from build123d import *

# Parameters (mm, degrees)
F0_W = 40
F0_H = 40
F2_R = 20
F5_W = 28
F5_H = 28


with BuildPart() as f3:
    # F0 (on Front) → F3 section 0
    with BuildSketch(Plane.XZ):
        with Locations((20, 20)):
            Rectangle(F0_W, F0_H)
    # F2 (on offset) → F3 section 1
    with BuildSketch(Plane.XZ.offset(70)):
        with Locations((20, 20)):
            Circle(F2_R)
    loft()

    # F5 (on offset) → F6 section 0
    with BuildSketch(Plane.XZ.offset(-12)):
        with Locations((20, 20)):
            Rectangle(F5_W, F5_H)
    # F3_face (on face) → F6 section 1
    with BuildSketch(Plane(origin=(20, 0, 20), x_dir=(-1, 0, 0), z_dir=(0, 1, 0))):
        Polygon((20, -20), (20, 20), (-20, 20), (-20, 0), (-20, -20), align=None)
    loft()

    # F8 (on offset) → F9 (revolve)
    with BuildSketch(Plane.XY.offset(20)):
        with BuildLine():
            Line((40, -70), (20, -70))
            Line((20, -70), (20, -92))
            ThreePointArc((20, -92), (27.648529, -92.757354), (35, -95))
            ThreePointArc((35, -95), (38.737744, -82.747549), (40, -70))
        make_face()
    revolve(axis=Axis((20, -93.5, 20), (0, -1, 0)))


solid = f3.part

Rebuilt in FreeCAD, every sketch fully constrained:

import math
import FreeCAD as App
import Part
import Sketcher
from FreeCAD import Vector
Q = App.Units.Quantity

doc = App.newDocument("Part")
body = doc.addObject("PartDesign::Body", "Body")

# Sketch on XZ plane
sketch1 = doc.addObject("Sketcher::SketchObject", "Sketch")
body.addObject(sketch1)
sketch1.AttachmentSupport = (doc.XZ_Plane, [""])
sketch1.MapMode = "FlatFace"
sketch1.addGeometry([
    Part.LineSegment(Vector(0, 40, 0), Vector(0, 0, 0)),
    Part.LineSegment(Vector(0, 0, 0), Vector(40, 0, 0)),
    Part.LineSegment(Vector(40, 0, 0), Vector(40, 40, 0)),
    Part.LineSegment(Vector(40, 40, 0), Vector(0, 40, 0)),
], False)
sketch1.addConstraint([
    Sketcher.Constraint("Coincident", 0, 2, 1, 1),
    Sketcher.Constraint("Coincident", 1, 2, 2, 1),
    Sketcher.Constraint("Coincident", 2, 2, 3, 1),
    Sketcher.Constraint("Coincident", 3, 2, 0, 1),
    Sketcher.Constraint("Vertical", 0),
    Sketcher.Constraint("Horizontal", 1),
    Sketcher.Constraint("Vertical", 2),
    Sketcher.Constraint("Horizontal", 3),
    Sketcher.Constraint("Coincident", 0, 2, -1, 1),
    Sketcher.Constraint("Equal", 3, 0),
    Sketcher.Constraint("DistanceX", 1, 1, 1, 2, Q("40 mm")),
])

# Sketch on XZ plane
sketch2 = doc.addObject("Sketcher::SketchObject", "Sketch001")
body.addObject(sketch2)
sketch2.AttachmentSupport = (doc.XZ_Plane, [""])
sketch2.MapMode = "FlatFace"
sketch2.AttachmentOffset = App.Placement(Vector(0, 0, 70), App.Rotation())
sketch2.addGeometry(Part.Circle(Vector(20, 20, 0), Vector(0, 0, 1), 20), False)
sketch2.addConstraint([
    Sketcher.Constraint("Diameter", 0, Q("40 mm")),
    Sketcher.Constraint("DistanceX", -1, 1, 0, 3, Q("20 mm")),
    Sketcher.Constraint("DistanceY", -1, 1, 0, 3, Q("20 mm")),
])

additiveloft = doc.addObject("PartDesign::AdditiveLoft", "AdditiveLoft")
body.addObject(additiveloft)
additiveloft.Profile = sketch1
additiveloft.Sections = [sketch2]

# Sketch on XZ plane
sketch3 = doc.addObject("Sketcher::SketchObject", "Sketch002")
body.addObject(sketch3)
sketch3.AttachmentSupport = (doc.XZ_Plane, [""])
sketch3.MapMode = "FlatFace"
sketch3.AttachmentOffset = App.Placement(Vector(0, 0, -12), App.Rotation())
sketch3.addGeometry([
    Part.LineSegment(Vector(6, 34, 0), Vector(6, 6, 0)),
    Part.LineSegment(Vector(6, 6, 0), Vector(34, 6, 0)),
    Part.LineSegment(Vector(34, 6, 0), Vector(34, 34, 0)),
    Part.LineSegment(Vector(34, 34, 0), Vector(6, 34, 0)),
], False)
sketch3.addConstraint([
    Sketcher.Constraint("Coincident", 0, 2, 1, 1),
    Sketcher.Constraint("Coincident", 1, 2, 2, 1),
    Sketcher.Constraint("Coincident", 2, 2, 3, 1),
    Sketcher.Constraint("Coincident", 3, 2, 0, 1),
    Sketcher.Constraint("Vertical", 0),
    Sketcher.Constraint("Horizontal", 1),
    Sketcher.Constraint("Vertical", 2),
    Sketcher.Constraint("Horizontal", 3),
    Sketcher.Constraint("Equal", 3, 0),
    Sketcher.Constraint("DistanceX", 1, 1, 1, 2, Q("28 mm")),
    Sketcher.Constraint("DistanceX", -1, 1, 0, 2, Q("6 mm")),
    Sketcher.Constraint("DistanceY", -1, 1, 0, 2, Q("6 mm")),
])

# Sketch on XZ plane
sketch4 = doc.addObject("Sketcher::SketchObject", "Sketch003")
body.addObject(sketch4)
sketch4.AttachmentSupport = (doc.XZ_Plane, [""])
sketch4.MapMode = "FlatFace"
sketch4.addGeometry([
    Part.LineSegment(Vector(0, 0, 0), Vector(0, 40, 0)),
    Part.LineSegment(Vector(0, 40, 0), Vector(40, 40, 0)),
    Part.LineSegment(Vector(40, 40, 0), Vector(40, 0, 0)),
    Part.LineSegment(Vector(40, 0, 0), Vector(0, 0, 0)),
], False)
sketch4.addConstraint([
    Sketcher.Constraint("Coincident", 0, 2, 1, 1),
    Sketcher.Constraint("Coincident", 1, 2, 2, 1),
    Sketcher.Constraint("Coincident", 2, 2, 3, 1),
    Sketcher.Constraint("Coincident", 3, 2, 0, 1),
    Sketcher.Constraint("Vertical", 0),
    Sketcher.Constraint("Horizontal", 1),
    Sketcher.Constraint("Vertical", 2),
    Sketcher.Constraint("Horizontal", 3),
    Sketcher.Constraint("Coincident", 3, 2, -1, 1),
    Sketcher.Constraint("Equal", 3, 0),
    Sketcher.Constraint("DistanceX", 1, 1, 1, 2, Q("40 mm")),
])

additiveloft2 = doc.addObject("PartDesign::AdditiveLoft", "AdditiveLoft001")
body.addObject(additiveloft2)
additiveloft2.Profile = sketch3
additiveloft2.Sections = [sketch4]

# Sketch on XY plane
sketch5 = doc.addObject("Sketcher::SketchObject", "Sketch004")
body.addObject(sketch5)
sketch5.AttachmentSupport = (doc.XY_Plane, [""])
sketch5.MapMode = "FlatFace"
sketch5.AttachmentOffset = App.Placement(Vector(0, 0, 20), App.Rotation())
sketch5.addGeometry([
    Part.LineSegment(Vector(40, -70, 0), Vector(20, -70, 0)),
    Part.LineSegment(Vector(20, -70, 0), Vector(20, -92, 0)),
    Part.ArcOfCircle(Part.Circle(Vector(19.999996, -131.00002, 0), Vector(0, 0, 1), 39.00002), math.radians(67.380141), math.radians(89.999994)),
    Part.ArcOfCircle(Part.Circle(Vector(-24.999994, -70.000001, 0), Vector(0, 0, 1), 64.999994), math.radians(-22.619866), math.radians(0.000001)),
], False)
sketch5.addGeometry(Part.LineSegment(Vector(20, -70, 0), Vector(20, -131.00002, 0)), True)  # axis
sketch5.addConstraint([
    Sketcher.Constraint("Coincident", 0, 2, 1, 1),
    Sketcher.Constraint("Coincident", 1, 2, 2, 2),
    Sketcher.Constraint("Coincident", 2, 1, 3, 1),
    Sketcher.Constraint("Coincident", 3, 2, 0, 1),
    Sketcher.Constraint("Horizontal", 0),
    Sketcher.Constraint("Vertical", 1),
    Sketcher.Constraint("Vertical", 4),
    Sketcher.Constraint("Coincident", 4, 1, 0, 2),
    Sketcher.Constraint("Coincident", 4, 2, 2, 3),
    Sketcher.Constraint("Horizontal", 3, 3, 0, 2),
    Sketcher.Constraint("DistanceX", 0, 2, 0, 1, Q("20 mm")),
    Sketcher.Constraint("DistanceY", 1, 2, 1, 1, Q("22 mm")),
    Sketcher.Constraint("DistanceY", 3, 3, -1, 1, Q("70.000001 mm")),
    Sketcher.Constraint("DistanceX", -1, 1, 0, 2, Q("20 mm")),
    Sketcher.Constraint("DistanceY", 2, 1, -1, 1, Q("95 mm")),
    Sketcher.Constraint("Radius", 2, Q("39.00002 mm")),
])
revolution = doc.addObject("PartDesign::Revolution", "Revolution")
body.addObject(revolution)
revolution.Profile = sketch5
revolution.ReferenceAxis = (sketch5, ["Axis0"])
revolution.Angle = 360

doc.recompute()
